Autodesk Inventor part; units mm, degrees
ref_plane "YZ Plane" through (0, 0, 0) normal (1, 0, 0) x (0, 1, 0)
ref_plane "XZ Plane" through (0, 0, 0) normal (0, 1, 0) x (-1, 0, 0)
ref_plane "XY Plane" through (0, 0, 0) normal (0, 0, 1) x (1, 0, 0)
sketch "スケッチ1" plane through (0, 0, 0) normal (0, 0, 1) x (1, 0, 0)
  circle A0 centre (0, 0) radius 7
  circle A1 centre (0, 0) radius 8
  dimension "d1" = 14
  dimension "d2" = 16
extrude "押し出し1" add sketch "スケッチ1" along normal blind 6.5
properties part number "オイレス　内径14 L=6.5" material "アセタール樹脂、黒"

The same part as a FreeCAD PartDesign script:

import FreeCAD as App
import Part
import Sketcher
from FreeCAD import Vector

doc = App.newDocument("Part")
body = doc.addObject("PartDesign::Body", "Body")

# Sketch on XY plane
sketch1 = body.newObject("Sketcher::SketchObject", "Sketch")
sketch1.AttachmentSupport = (doc.getObject("XY_Plane"), [""])
sketch1.MapMode = "FlatFace"
sketch1.addGeometry([
    Part.Circle(Vector(0, 0, 0), Vector(0, 0, 1), 8),
    Part.Circle(Vector(0, 0, 0), Vector(0, 0, 1), 7),
], False)
sketch1.addConstraint([
    Sketcher.Constraint("Coincident", 0, 3, -1, 1),
    Sketcher.Constraint("Coincident", 1, 3, -1, 1),
    Sketcher.Constraint("Diameter", 0, 16.0),
    Sketcher.Constraint("Diameter", 1, 14.0),
])
pad1 = body.newObject("PartDesign::Pad", "Pad")
pad1.Profile = sketch1
pad1.Length = 6.5

doc.recompute()
